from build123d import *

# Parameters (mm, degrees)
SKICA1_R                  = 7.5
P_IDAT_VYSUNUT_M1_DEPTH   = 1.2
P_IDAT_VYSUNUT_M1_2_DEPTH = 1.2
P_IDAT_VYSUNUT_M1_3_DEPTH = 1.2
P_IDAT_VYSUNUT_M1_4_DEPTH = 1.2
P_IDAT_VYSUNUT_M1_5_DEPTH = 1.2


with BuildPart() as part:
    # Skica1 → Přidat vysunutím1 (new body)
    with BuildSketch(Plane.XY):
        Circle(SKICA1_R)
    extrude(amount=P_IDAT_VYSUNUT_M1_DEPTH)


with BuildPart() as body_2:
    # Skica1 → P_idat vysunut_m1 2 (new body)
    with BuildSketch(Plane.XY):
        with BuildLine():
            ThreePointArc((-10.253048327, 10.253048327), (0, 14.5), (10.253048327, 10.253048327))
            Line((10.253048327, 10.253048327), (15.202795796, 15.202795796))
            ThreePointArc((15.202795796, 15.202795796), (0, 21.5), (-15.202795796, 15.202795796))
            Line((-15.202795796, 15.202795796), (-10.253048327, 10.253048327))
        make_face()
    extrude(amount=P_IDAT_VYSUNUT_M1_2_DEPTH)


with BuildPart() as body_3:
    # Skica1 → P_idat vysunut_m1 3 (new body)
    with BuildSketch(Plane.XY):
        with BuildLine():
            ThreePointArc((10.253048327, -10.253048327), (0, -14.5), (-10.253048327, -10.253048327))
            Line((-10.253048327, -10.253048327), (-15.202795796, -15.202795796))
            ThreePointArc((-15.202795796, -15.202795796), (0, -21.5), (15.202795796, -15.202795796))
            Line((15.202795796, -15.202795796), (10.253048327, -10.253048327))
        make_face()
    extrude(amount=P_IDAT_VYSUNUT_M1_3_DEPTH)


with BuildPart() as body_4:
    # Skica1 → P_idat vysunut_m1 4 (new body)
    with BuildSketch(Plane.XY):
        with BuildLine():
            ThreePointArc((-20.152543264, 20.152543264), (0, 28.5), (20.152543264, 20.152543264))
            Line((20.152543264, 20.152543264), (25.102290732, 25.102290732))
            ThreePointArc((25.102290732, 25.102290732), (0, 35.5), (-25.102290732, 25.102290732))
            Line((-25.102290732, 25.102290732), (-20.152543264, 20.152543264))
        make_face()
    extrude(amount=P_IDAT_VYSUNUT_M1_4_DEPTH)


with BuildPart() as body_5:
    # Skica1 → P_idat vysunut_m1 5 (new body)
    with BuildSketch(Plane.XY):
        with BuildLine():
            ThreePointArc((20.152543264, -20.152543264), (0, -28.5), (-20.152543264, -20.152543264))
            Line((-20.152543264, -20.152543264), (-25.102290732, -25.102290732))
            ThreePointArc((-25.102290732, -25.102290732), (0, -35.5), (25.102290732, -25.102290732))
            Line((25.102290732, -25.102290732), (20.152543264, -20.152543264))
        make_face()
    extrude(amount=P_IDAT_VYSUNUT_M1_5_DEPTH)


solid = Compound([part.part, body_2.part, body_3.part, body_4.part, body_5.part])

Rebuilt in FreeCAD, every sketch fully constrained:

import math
import FreeCAD as App
import Part
import Sketcher
from FreeCAD import Vector

doc = App.newDocument("Part")
body = doc.addObject("PartDesign::Body", "Body")

sketch1 = body.newObject("Sketcher::SketchObject", "Sketch")
sketch1.AttachmentSupport = (doc.getObject("XY_Plane"), [""])
sketch1.MapMode = "FlatFace"
sketch1.addGeometry(Part.Circle(Vector(0, 0, 0), Vector(0, 0, 1), 8), False)
sketch1.addConstraint([
    Sketcher.Constraint("Coincident", 0, 3, -1, 1),
    Sketcher.Constraint("Diameter", 0, 15.0),
])
pad1 = body.newObject("PartDesign::Pad", "Pad")
pad1.Profile = sketch1
pad1.Length = 1.2
body2 = doc.addObject("PartDesign::Body", "Body001")

sketch2 = body2.newObject("Sketcher::SketchObject", "Sketch001")
sketch2.AttachmentSupport = (doc.getObject("XY_Plane001"), [""])
sketch2.MapMode = "FlatFace"
sketch2.addGeometry([
    Part.ArcOfCircle(Part.Circle(Vector(0, 0, 0), Vector(0, 0, 1), 14), math.radians(45), math.radians(135)),
    Part.LineSegment(Vector(10, 10, 0), Vector(15, 15, 0)),
    Part.ArcOfCircle(Part.Circle(Vector(0, 0, 0), Vector(0, 0, 1), 22), math.radians(45), math.radians(135)),
    Part.LineSegment(Vector(-15, 15, 0), Vector(-10, 10, 0)),
], False)
sketch2.addConstraint([
    Sketcher.Constraint("Coincident", 0, 1, 1, 1),
    Sketcher.Constraint("Coincident", 1, 2, 2, 1),
    Sketcher.Constraint("Coincident", 2, 2, 3, 1),
    Sketcher.Constraint("Coincident", 3, 2, 0, 2),
    Sketcher.Constraint("Coincident", 0, 3, -1, 1),
    Sketcher.Constraint("Coincident", 2, 3, -1, 1),
    Sketcher.Constraint("Perpendicular", 1, 3),
    Sketcher.Constraint("Horizontal", 1, 2, 2, 2),
    Sketcher.Constraint("Horizontal", 0, 1, 3, 2),
    Sketcher.Constraint("Radius", 0, 14.5),
    Sketcher.Constraint("Radius", 2, 21.5),
    Sketcher.Constraint("DistanceX", -1, 1, 0, 1, 10.253048),
])
pad2 = body2.newObject("PartDesign::Pad", "Pad001")
pad2.Profile = sketch2
pad2.Length = 1.2
body3 = doc.addObject("PartDesign::Body", "Body002")

sketch3 = body3.newObject("Sketcher::SketchObject", "Sketch002")
sketch3.AttachmentSupport = (doc.getObject("XY_Plane002"), [""])
sketch3.MapMode = "FlatFace"
sketch3.addGeometry([
    Part.ArcOfCircle(Part.Circle(Vector(0, 0, 0), Vector(0, 0, 1), 14), math.radians(-135), math.radians(-45)),
    Part.LineSegment(Vector(-10, -10, 0), Vector(-15, -15, 0)),
    Part.ArcOfCircle(Part.Circle(Vector(0, 0, 0), Vector(0, 0, 1), 22), math.radians(-135), math.radians(-45)),
    Part.LineSegment(Vector(15, -15, 0), Vector(10, -10, 0)),
], False)
sketch3.addConstraint([
    Sketcher.Constraint("Coincident", 0, 1, 1, 1),
    Sketcher.Constraint("Coincident", 1, 2, 2, 1),
    Sketcher.Constraint("Coincident", 2, 2, 3, 1),
    Sketcher.Constraint("Coincident", 3, 2, 0, 2),
    Sketcher.Constraint("Coincident", 0, 3, -1, 1),
    Sketcher.Constraint("Coincident", 2, 3, -1, 1),
    Sketcher.Constraint("Perpendicular", 1, 3),
    Sketcher.Constraint("Horizontal", 1, 2, 2, 2),
    Sketcher.Constraint("Horizontal", 0, 1, 3, 2),
    Sketcher.Constraint("Radius", 0, 14.5),
    Sketcher.Constraint("Radius", 2, 21.5),
    Sketcher.Constraint("DistanceX", 0, 1, -1, 1, 10.253048),
])
pad3 = body3.newObject("PartDesign::Pad", "Pad002")
pad3.Profile = sketch3
pad3.Length = 1.2
body4 = doc.addObject("PartDesign::Body", "Body003")

sketch4 = body4.newObject("Sketcher::SketchObject", "Sketch003")
sketch4.AttachmentSupport = (doc.getObject("XY_Plane003"), [""])
sketch4.MapMode = "FlatFace"
sketch4.addGeometry([
    Part.ArcOfCircle(Part.Circle(Vector(0, 0, 0), Vector(0, 0, 1), 29), math.radians(45), math.radians(135)),
    Part.LineSegment(Vector(20, 20, 0), Vector(25, 25, 0)),
    Part.ArcOfCircle(Part.Circle(Vector(0, 0, 0), Vector(0, 0, 1), 35), math.radians(45), math.radians(135)),
    Part.LineSegment(Vector(-25, 25, 0), Vector(-20, 20, 0)),
], False)
sketch4.addConstraint([
    Sketcher.Constraint("Coincident", 0, 1, 1, 1),
    Sketcher.Constraint("Coincident", 1, 2, 2, 1),
    Sketcher.Constraint("Coincident", 2, 2, 3, 1),
    Sketcher.Constraint("Coincident", 3, 2, 0, 2),
    Sketcher.Constraint("Coincident", 0, 3, -1, 1),
    Sketcher.Constraint("Coincident", 2, 3, -1, 1),
    Sketcher.Constraint("Perpendicular", 1, 3),
    Sketcher.Constraint("Horizontal", 1, 2, 2, 2),
    Sketcher.Constraint("Horizontal", 0, 1, 3, 2),
    Sketcher.Constraint("Radius", 0, 28.5),
    Sketcher.Constraint("Radius", 2, 35.5),
    Sketcher.Constraint("DistanceX", -1, 1, 1, 2, 25.102291),
])
pad4 = body4.newObject("PartDesign::Pad", "Pad003")
pad4.Profile = sketch4
pad4.Length = 1.2
body5 = doc.addObject("PartDesign::Body", "Body004")

sketch5 = body5.newObject("Sketcher::SketchObject", "Sketch004")
sketch5.AttachmentSupport = (doc.getObject("XY_Plane004"), [""])
sketch5.MapMode = "FlatFace"
sketch5.addGeometry([
    Part.ArcOfCircle(Part.Circle(Vector(0, 0, 0), Vector(0, 0, 1), 29), math.radians(-135), math.radians(-45)),
    Part.LineSegment(Vector(-20, -20, 0), Vector(-25, -25, 0)),
    Part.ArcOfCircle(Part.Circle(Vector(0, 0, 0), Vector(0, 0, 1), 35), math.radians(-135), math.radians(-45)),
    Part.LineSegment(Vector(25, -25, 0), Vector(20, -20, 0)),
], False)
sketch5.addConstraint([
    Sketcher.Constraint("Coincident", 0, 1, 1, 1),
    Sketcher.Constraint("Coincident", 1, 2, 2, 1),
    Sketcher.Constraint("Coincident", 2, 2, 3, 1),
    Sketcher.Constraint("Coincident", 3, 2, 0, 2),
    Sketcher.Constraint("Coincident", 0, 3, -1, 1),
    Sketcher.Constraint("Coincident", 2, 3, -1, 1),
    Sketcher.Constraint("Perpendicular", 1, 3),
    Sketcher.Constraint("Horizontal", 1, 2, 2, 2),
    Sketcher.Constraint("Horizontal", 0, 1, 3, 2),
    Sketcher.Constraint("Radius", 0, 28.5),
    Sketcher.Constraint("Radius", 2, 35.5),
    Sketcher.Constraint("DistanceX", 1, 2, -1, 1, 25.102291),
])
pad5 = body5.newObject("PartDesign::Pad", "Pad004")
pad5.Profile = sketch5
pad5.Length = 1.2

doc.recompute()
